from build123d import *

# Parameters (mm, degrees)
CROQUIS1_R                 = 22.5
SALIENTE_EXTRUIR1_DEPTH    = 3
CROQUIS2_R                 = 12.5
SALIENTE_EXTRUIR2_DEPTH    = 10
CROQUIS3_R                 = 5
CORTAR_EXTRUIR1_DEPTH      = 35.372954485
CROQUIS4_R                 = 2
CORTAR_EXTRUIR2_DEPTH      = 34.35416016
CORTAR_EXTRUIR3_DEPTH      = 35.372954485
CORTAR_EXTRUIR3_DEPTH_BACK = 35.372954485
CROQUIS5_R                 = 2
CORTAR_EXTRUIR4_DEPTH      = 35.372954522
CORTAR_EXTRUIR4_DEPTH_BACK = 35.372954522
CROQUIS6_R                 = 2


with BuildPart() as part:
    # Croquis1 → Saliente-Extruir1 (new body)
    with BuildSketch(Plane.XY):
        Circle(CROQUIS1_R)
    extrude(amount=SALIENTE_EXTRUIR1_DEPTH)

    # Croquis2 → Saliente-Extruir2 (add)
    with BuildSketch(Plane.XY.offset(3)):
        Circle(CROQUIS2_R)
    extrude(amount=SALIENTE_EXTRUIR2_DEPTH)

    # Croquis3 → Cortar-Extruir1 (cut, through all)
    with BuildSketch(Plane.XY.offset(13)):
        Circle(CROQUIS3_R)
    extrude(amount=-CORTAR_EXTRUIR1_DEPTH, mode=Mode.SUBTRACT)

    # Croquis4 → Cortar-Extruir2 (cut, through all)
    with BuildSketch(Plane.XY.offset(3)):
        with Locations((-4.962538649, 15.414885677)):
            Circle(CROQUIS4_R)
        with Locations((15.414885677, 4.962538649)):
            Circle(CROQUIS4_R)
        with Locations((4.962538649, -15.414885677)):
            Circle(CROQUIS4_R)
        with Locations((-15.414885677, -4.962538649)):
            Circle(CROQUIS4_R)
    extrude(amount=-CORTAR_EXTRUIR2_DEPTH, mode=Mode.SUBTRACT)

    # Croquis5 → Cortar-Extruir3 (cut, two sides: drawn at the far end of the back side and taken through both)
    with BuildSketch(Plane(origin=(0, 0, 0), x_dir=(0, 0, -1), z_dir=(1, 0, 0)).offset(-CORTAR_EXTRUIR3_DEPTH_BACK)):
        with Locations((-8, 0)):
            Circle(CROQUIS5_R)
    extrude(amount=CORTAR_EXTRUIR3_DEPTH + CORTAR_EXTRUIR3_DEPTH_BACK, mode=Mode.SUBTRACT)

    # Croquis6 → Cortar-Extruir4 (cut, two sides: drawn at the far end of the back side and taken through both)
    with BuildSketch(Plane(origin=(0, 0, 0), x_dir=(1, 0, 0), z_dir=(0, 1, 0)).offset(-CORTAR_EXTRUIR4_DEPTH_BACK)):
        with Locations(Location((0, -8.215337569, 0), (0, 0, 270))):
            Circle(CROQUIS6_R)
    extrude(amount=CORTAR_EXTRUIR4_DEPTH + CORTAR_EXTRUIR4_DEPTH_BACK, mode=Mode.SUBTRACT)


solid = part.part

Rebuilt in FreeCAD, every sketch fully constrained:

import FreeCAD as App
import Part
import Sketcher

doc = App.newDocument("Part")
body = doc.addObject("PartDesign::Body", "Body")

# Sketch on XY plane
sketch1 = body.newObject("Sketcher::SketchObject", "Sketch")
sketch1.AttachmentSupport = (doc.getObject("XY_Plane"), [""])
sketch1.MapMode = "FlatFace"
sketch1.addGeometry(Part.Circle(App.Vector(0, 0, 0), App.Vector(0, 0, 1), 22), False)
sketch1.addConstraint([
    Sketcher.Constraint("Coincident", 0, 3, -1, 1),
    Sketcher.Constraint("Diameter", 0, 45.0),
])
pad1 = body.newObject("PartDesign::Pad", "Pad")
pad1.Profile = sketch1
pad1.Length = 3

# Sketch on XY plane
sketch2 = body.newObject("Sketcher::SketchObject", "Sketch001")
sketch2.AttachmentSupport = (doc.getObject("XY_Plane"), [""])
sketch2.MapMode = "FlatFace"
sketch2.AttachmentOffset = App.Placement(App.Vector(0, 0, 3), App.Rotation())
sketch2.addGeometry(Part.Circle(App.Vector(0, 0, 0), App.Vector(0, 0, 1), 12), False)
sketch2.addConstraint([
    Sketcher.Constraint("Coincident", 0, 3, -1, 1),
    Sketcher.Constraint("Diameter", 0, 25.0),
])
pad2 = body.newObject("PartDesign::Pad", "Pad001")
pad2.Profile = sketch2
pad2.Length = 10

# Sketch on XY plane
sketch3 = body.newObject("Sketcher::SketchObject", "Sketch002")
sketch3.AttachmentSupport = (doc.getObject("XY_Plane"), [""])
sketch3.MapMode = "FlatFace"
sketch3.AttachmentOffset = App.Placement(App.Vector(0, 0, 13), App.Rotation())
sketch3.addGeometry(Part.Circle(App.Vector(0, 0, 0), App.Vector(0, 0, 1), 5), False)
sketch3.addConstraint([
    Sketcher.Constraint("Coincident", 0, 3, -1, 1),
    Sketcher.Constraint("Diameter", 0, 10.0),
])
pocket1 = body.newObject("PartDesign::Pocket", "Pocket")
pocket1.Profile = sketch3
pocket1.Type = "ThroughAll"

# Sketch on XY plane
sketch4 = body.newObject("Sketcher::SketchObject", "Sketch003")
sketch4.AttachmentSupport = (doc.getObject("XY_Plane"), [""])
sketch4.MapMode = "FlatFace"
sketch4.AttachmentOffset = App.Placement(App.Vector(0, 0, 3), App.Rotation())
sketch4.addGeometry([
    Part.Circle(App.Vector(-5, 15.4, 0), App.Vector(0, 0, 1), 2),
    Part.Circle(App.Vector(15.4, 5, 0), App.Vector(0, 0, 1), 2),
    Part.Circle(App.Vector(5, -15.4, 0), App.Vector(0, 0, 1), 2),
    Part.Circle(App.Vector(-15.4, -5, 0), App.Vector(0, 0, 1), 2),
], False)
sketch4.addConstraint([
    Sketcher.Constraint("Equal", 0, 1),
    Sketcher.Constraint("Equal", 1, 2),
    Sketcher.Constraint("Equal", 2, 3),
    Sketcher.Constraint("Symmetric", 0, 3, 2, 3, -1, 1),
    Sketcher.Constraint("Symmetric", 1, 3, 3, 3, -1, 1),
    Sketcher.Constraint("Diameter", 0, 4.0),
    Sketcher.Constraint("DistanceX", 0, 3, -1, 1, 4.962539),
    Sketcher.Constraint("DistanceY", -1, 1, 1, 3, 4.962539),
    Sketcher.Constraint("DistanceY", 2, 3, 0, 3, 30.829771),
    Sketcher.Constraint("DistanceX", 3, 3, 1, 3, 30.829771),
])
pocket2 = body.newObject("PartDesign::Pocket", "Pocket001")
pocket2.Profile = sketch4
pocket2.Type = "ThroughAll"

# Sketch on YZ plane
sketch5 = body.newObject("Sketcher::SketchObject", "Sketch004")
sketch5.AttachmentSupport = (doc.getObject("YZ_Plane"), [""])
sketch5.MapMode = "FlatFace"
sketch5.addGeometry(Part.Circle(App.Vector(0, 8, 0), App.Vector(0, 0, 1), 2), False)
sketch5.addConstraint([
    Sketcher.Constraint("PointOnObject", 0, 3, -2),
    Sketcher.Constraint("Diameter", 0, 4.0),
    Sketcher.Constraint("DistanceY", -1, 1, 0, 3, 8.0),
])
pocket3 = body.newObject("PartDesign::Pocket", "Pocket002")
pocket3.Profile = sketch5
pocket3.Type = "ThroughAll"
pocket3.Midplane = True

# Sketch on XZ plane
sketch6 = body.newObject("Sketcher::SketchObject", "Sketch005")
sketch6.AttachmentSupport = (doc.getObject("XZ_Plane"), [""])
sketch6.MapMode = "FlatFace"
sketch6.addGeometry(Part.Circle(App.Vector(0, 8.2, 0), App.Vector(0, 0, 1), 2), False)
sketch6.addConstraint([
    Sketcher.Constraint("PointOnObject", 0, 3, -2),
    Sketcher.Constraint("Diameter", 0, 4.0),
    Sketcher.Constraint("DistanceY", -1, 1, 0, 3, 8.215338),
])
pocket4 = body.newObject("PartDesign::Pocket", "Pocket003")
pocket4.Profile = sketch6
pocket4.Type = "ThroughAll"
pocket4.Midplane = True

doc.recompute()
